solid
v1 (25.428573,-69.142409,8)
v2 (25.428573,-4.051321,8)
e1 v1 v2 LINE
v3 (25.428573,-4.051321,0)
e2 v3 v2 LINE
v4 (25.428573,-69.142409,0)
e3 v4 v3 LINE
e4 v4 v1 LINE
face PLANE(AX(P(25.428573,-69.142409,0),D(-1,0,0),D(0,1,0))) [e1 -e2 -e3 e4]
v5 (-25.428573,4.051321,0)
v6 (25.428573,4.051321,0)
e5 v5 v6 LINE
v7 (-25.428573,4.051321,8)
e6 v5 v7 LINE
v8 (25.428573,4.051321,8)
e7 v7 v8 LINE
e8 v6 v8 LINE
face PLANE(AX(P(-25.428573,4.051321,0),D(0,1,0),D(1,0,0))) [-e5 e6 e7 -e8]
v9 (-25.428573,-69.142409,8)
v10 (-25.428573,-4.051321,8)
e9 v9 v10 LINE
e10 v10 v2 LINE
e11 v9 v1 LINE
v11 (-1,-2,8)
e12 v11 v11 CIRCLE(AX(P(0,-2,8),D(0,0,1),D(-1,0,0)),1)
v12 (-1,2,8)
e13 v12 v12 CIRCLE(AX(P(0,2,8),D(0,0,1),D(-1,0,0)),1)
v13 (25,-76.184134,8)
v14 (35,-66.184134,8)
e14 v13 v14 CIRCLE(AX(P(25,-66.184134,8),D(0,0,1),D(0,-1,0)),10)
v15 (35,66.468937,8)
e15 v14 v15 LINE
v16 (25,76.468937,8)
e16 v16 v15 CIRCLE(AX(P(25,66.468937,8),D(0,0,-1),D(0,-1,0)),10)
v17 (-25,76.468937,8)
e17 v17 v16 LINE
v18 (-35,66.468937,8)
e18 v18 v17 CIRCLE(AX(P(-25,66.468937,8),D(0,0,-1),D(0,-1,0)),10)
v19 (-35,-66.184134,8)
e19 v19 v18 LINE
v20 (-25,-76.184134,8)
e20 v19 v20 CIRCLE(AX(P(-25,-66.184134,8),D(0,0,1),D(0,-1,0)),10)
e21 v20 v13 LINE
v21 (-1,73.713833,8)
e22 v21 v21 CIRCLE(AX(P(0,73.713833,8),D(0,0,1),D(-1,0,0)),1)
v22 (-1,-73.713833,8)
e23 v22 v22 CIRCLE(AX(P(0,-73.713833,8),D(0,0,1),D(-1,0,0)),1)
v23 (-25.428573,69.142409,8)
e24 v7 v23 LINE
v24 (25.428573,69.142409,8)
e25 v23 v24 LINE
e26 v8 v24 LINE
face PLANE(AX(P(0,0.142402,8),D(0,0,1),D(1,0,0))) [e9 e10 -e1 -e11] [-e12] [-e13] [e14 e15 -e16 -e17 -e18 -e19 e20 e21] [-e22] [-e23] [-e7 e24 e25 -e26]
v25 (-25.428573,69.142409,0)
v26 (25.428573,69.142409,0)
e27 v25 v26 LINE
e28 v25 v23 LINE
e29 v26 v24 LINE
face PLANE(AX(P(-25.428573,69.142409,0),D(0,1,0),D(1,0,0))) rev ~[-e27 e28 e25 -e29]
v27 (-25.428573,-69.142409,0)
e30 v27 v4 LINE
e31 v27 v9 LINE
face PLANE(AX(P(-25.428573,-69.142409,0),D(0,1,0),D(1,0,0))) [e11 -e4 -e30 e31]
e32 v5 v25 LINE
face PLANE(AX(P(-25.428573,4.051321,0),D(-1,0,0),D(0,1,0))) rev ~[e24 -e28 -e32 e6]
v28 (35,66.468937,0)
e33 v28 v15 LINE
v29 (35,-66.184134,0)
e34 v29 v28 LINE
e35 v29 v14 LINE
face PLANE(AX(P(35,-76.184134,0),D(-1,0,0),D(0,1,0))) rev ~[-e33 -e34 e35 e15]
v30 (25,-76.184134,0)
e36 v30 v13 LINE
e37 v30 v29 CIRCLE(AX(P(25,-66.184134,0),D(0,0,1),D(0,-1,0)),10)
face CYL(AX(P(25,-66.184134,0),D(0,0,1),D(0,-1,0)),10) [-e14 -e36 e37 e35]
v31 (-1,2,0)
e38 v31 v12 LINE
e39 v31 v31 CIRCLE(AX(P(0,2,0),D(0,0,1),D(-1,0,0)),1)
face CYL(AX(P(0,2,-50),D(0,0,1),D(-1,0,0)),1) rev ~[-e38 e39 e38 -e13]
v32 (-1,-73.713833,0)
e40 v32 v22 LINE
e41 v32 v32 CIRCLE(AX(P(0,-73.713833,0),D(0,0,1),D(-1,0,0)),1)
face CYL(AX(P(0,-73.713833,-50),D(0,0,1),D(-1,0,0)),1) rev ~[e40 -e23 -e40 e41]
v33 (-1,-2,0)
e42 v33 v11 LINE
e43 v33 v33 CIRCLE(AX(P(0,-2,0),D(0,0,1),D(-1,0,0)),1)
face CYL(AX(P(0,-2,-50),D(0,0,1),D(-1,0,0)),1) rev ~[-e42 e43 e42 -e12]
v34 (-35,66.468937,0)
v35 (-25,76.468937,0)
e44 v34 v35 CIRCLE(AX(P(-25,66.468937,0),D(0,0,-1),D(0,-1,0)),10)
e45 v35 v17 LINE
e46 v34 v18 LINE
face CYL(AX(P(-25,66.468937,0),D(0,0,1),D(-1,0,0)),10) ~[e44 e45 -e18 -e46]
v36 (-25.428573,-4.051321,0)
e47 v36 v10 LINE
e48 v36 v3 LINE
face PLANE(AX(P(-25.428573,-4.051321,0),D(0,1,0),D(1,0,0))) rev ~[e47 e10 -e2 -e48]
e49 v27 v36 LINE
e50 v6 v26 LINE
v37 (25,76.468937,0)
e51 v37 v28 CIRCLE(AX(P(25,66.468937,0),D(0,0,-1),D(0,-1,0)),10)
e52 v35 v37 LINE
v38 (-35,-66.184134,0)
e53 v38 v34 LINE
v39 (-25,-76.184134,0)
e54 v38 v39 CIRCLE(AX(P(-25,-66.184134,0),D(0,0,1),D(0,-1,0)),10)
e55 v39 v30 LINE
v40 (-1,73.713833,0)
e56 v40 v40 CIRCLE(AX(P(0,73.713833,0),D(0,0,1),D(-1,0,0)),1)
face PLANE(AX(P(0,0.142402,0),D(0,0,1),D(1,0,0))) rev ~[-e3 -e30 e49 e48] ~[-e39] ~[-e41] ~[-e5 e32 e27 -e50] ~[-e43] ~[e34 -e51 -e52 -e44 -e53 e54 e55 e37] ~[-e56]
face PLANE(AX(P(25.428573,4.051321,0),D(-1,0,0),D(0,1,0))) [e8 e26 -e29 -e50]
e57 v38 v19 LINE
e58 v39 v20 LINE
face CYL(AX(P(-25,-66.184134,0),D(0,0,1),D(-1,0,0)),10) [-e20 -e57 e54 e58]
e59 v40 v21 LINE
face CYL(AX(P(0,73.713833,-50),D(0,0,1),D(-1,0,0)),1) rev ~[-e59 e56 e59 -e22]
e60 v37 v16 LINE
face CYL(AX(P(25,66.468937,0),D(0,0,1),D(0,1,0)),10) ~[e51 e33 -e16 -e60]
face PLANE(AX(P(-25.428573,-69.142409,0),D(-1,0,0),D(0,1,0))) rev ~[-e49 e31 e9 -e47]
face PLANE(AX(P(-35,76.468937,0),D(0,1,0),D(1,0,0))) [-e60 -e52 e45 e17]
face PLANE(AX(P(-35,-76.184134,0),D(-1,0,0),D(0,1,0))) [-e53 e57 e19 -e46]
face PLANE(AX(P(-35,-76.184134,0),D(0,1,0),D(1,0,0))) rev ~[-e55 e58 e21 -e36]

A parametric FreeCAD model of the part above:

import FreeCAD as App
import Part
import Sketcher
from FreeCAD import Vector
Q = App.Units.Quantity


def edges_at(feature, points):
    """Names of the edges that pass closest to the given points."""
    edges = feature.Shape.Edges
    near = lambda p: min(range(len(edges)), key=lambda i: edges[i].distToShape(Part.Vertex(*p))[0])
    return sorted({f"Edge{near(p) + 1}" for p in points})


def add_polygon(sketch, points):
    """Adds a closed chain of lines whose ends are joined by coincident constraints."""
    first, n = sketch.GeometryCount, len(points)
    for a, b in zip(points, points[1:] + points[:1]):
        sketch.addGeometry(Part.LineSegment(App.Vector(*a, 0), App.Vector(*b, 0)), False)
    for i in range(n):
        sketch.addConstraint(Sketcher.Constraint("Coincident", first + i, 2, first + (i + 1) % n, 1))

doc = App.newDocument("Part")
body = doc.addObject("PartDesign::Body", "Body")

sketch1 = body.newObject("Sketcher::SketchObject", "Sketch")
sketch1.AttachmentSupport = (doc.getObject("XY_Plane"), [""])
sketch1.MapMode = "FlatFace"
add_polygon(sketch1, [(-35, 76), (-35, -76), (35, -76), (35, 76)])
add_polygon(sketch1, [(25, -69), (-25, -69), (-25, -4), (25, -4)])
add_polygon(sketch1, [(25, 4), (-25, 4), (-25, 69), (25, 69)])
sketch1.addConstraint(Sketcher.Constraint("Vertical", 0))
sketch1.addConstraint(Sketcher.Constraint("Horizontal", 1))
sketch1.addConstraint(Sketcher.Constraint("Vertical", 2))
sketch1.addConstraint(Sketcher.Constraint("Horizontal", 3))
sketch1.addConstraint(Sketcher.Constraint("Horizontal", 4))
sketch1.addConstraint(Sketcher.Constraint("Vertical", 5))
sketch1.addConstraint(Sketcher.Constraint("Horizontal", 6))
sketch1.addConstraint(Sketcher.Constraint("Vertical", 7))
sketch1.addConstraint(Sketcher.Constraint("Horizontal", 8))
sketch1.addConstraint(Sketcher.Constraint("Vertical", 9))
sketch1.addConstraint(Sketcher.Constraint("Horizontal", 10))
sketch1.addConstraint(Sketcher.Constraint("Vertical", 11))
sketch1.addConstraint(Sketcher.Constraint("Symmetric", 6, 2, 8, 2, -1, 1))
sketch1.addConstraint(Sketcher.Constraint("Symmetric", 4, 2, 10, 2, -1, 1))
sketch1.addConstraint(Sketcher.Constraint("Vertical", 5, 2, 8, 2))
sketch1.addConstraint(Sketcher.Constraint("DistanceX", 1, 1, 1, 2, Q("70 mm")))
sketch1.addConstraint(Sketcher.Constraint("DistanceX", 0, 2, -1, 1, Q("35 mm")))
sketch1.addConstraint(Sketcher.Constraint("DistanceY", 0, 2, 0, 1, Q("152.653071 mm")))
sketch1.addConstraint(Sketcher.Constraint("DistanceY", 5, 1, 5, 2, Q("65.091088 mm")))
sketch1.addConstraint(Sketcher.Constraint("DistanceX", 4, 2, 4, 1, Q("50.857146 mm")))
sketch1.addConstraint(Sketcher.Constraint("DistanceY", 4, 2, -1, 1, Q("69.142409 mm")))
sketch1.addConstraint(Sketcher.Constraint("DistanceY", 5, 2, 3, 2, Q("80.520258 mm")))
pad1 = body.newObject("PartDesign::Pad", "Pad")
pad1.Profile = sketch1
pad1.Length = 8

sketch2 = body.newObject("Sketcher::SketchObject", "Sketch001")
sketch2.AttachmentSupport = (doc.getObject("XY_Plane"), [""])
sketch2.MapMode = "FlatFace"
sketch2.addGeometry(Part.Circle(Vector(0, -2, 0), Vector(0, 0, 1), 1), False)
sketch2.addGeometry(Part.Circle(Vector(0, 2, 0), Vector(0, 0, 1), 1), False)
sketch2.addGeometry(Part.Circle(Vector(0, -73.7, 0), Vector(0, 0, 1), 1), False)
sketch2.addGeometry(Part.Circle(Vector(0, 73.7, 0), Vector(0, 0, 1), 1), False)
sketch2.addConstraint(Sketcher.Constraint("Equal", 0, 1))
sketch2.addConstraint(Sketcher.Constraint("Equal", 1, 2))
sketch2.addConstraint(Sketcher.Constraint("Equal", 2, 3))
sketch2.addConstraint(Sketcher.Constraint("Symmetric", 0, 3, 1, 3, -1, 1))
sketch2.addConstraint(Sketcher.Constraint("Symmetric", 2, 3, 3, 3, -1, 1))
sketch2.addConstraint(Sketcher.Constraint("PointOnObject", 0, 3, -2))
sketch2.addConstraint(Sketcher.Constraint("PointOnObject", 2, 3, -2))
sketch2.addConstraint(Sketcher.Constraint("Diameter", 0, Q("2 mm")))
sketch2.addConstraint(Sketcher.Constraint("DistanceY", 0, 3, -1, 1, Q("2 mm")))
sketch2.addConstraint(Sketcher.Constraint("DistanceY", 2, 3, -1, 1, Q("73.713833 mm")))
doc.recompute()
hole = body.newObject("PartDesign::Hole", "Hole")
hole.Profile = sketch2
hole.ThreadType = "None"
hole.Diameter = 2
hole.DepthType = "Dimension"
hole.Depth = 50
hole.DrillPoint = "Flat"
hole.Reversed = True
doc.recompute()

fillet = body.newObject("PartDesign::Fillet", "Fillet")
fillet.Base = (hole, edges_at(hole, [
    (-35, 76.469, 4),
    (35, 76.469, 4),
    (-35, -76.184, 4),
    (35, -76.184, 4),
]))
fillet.Radius = 10

doc.recompute()
